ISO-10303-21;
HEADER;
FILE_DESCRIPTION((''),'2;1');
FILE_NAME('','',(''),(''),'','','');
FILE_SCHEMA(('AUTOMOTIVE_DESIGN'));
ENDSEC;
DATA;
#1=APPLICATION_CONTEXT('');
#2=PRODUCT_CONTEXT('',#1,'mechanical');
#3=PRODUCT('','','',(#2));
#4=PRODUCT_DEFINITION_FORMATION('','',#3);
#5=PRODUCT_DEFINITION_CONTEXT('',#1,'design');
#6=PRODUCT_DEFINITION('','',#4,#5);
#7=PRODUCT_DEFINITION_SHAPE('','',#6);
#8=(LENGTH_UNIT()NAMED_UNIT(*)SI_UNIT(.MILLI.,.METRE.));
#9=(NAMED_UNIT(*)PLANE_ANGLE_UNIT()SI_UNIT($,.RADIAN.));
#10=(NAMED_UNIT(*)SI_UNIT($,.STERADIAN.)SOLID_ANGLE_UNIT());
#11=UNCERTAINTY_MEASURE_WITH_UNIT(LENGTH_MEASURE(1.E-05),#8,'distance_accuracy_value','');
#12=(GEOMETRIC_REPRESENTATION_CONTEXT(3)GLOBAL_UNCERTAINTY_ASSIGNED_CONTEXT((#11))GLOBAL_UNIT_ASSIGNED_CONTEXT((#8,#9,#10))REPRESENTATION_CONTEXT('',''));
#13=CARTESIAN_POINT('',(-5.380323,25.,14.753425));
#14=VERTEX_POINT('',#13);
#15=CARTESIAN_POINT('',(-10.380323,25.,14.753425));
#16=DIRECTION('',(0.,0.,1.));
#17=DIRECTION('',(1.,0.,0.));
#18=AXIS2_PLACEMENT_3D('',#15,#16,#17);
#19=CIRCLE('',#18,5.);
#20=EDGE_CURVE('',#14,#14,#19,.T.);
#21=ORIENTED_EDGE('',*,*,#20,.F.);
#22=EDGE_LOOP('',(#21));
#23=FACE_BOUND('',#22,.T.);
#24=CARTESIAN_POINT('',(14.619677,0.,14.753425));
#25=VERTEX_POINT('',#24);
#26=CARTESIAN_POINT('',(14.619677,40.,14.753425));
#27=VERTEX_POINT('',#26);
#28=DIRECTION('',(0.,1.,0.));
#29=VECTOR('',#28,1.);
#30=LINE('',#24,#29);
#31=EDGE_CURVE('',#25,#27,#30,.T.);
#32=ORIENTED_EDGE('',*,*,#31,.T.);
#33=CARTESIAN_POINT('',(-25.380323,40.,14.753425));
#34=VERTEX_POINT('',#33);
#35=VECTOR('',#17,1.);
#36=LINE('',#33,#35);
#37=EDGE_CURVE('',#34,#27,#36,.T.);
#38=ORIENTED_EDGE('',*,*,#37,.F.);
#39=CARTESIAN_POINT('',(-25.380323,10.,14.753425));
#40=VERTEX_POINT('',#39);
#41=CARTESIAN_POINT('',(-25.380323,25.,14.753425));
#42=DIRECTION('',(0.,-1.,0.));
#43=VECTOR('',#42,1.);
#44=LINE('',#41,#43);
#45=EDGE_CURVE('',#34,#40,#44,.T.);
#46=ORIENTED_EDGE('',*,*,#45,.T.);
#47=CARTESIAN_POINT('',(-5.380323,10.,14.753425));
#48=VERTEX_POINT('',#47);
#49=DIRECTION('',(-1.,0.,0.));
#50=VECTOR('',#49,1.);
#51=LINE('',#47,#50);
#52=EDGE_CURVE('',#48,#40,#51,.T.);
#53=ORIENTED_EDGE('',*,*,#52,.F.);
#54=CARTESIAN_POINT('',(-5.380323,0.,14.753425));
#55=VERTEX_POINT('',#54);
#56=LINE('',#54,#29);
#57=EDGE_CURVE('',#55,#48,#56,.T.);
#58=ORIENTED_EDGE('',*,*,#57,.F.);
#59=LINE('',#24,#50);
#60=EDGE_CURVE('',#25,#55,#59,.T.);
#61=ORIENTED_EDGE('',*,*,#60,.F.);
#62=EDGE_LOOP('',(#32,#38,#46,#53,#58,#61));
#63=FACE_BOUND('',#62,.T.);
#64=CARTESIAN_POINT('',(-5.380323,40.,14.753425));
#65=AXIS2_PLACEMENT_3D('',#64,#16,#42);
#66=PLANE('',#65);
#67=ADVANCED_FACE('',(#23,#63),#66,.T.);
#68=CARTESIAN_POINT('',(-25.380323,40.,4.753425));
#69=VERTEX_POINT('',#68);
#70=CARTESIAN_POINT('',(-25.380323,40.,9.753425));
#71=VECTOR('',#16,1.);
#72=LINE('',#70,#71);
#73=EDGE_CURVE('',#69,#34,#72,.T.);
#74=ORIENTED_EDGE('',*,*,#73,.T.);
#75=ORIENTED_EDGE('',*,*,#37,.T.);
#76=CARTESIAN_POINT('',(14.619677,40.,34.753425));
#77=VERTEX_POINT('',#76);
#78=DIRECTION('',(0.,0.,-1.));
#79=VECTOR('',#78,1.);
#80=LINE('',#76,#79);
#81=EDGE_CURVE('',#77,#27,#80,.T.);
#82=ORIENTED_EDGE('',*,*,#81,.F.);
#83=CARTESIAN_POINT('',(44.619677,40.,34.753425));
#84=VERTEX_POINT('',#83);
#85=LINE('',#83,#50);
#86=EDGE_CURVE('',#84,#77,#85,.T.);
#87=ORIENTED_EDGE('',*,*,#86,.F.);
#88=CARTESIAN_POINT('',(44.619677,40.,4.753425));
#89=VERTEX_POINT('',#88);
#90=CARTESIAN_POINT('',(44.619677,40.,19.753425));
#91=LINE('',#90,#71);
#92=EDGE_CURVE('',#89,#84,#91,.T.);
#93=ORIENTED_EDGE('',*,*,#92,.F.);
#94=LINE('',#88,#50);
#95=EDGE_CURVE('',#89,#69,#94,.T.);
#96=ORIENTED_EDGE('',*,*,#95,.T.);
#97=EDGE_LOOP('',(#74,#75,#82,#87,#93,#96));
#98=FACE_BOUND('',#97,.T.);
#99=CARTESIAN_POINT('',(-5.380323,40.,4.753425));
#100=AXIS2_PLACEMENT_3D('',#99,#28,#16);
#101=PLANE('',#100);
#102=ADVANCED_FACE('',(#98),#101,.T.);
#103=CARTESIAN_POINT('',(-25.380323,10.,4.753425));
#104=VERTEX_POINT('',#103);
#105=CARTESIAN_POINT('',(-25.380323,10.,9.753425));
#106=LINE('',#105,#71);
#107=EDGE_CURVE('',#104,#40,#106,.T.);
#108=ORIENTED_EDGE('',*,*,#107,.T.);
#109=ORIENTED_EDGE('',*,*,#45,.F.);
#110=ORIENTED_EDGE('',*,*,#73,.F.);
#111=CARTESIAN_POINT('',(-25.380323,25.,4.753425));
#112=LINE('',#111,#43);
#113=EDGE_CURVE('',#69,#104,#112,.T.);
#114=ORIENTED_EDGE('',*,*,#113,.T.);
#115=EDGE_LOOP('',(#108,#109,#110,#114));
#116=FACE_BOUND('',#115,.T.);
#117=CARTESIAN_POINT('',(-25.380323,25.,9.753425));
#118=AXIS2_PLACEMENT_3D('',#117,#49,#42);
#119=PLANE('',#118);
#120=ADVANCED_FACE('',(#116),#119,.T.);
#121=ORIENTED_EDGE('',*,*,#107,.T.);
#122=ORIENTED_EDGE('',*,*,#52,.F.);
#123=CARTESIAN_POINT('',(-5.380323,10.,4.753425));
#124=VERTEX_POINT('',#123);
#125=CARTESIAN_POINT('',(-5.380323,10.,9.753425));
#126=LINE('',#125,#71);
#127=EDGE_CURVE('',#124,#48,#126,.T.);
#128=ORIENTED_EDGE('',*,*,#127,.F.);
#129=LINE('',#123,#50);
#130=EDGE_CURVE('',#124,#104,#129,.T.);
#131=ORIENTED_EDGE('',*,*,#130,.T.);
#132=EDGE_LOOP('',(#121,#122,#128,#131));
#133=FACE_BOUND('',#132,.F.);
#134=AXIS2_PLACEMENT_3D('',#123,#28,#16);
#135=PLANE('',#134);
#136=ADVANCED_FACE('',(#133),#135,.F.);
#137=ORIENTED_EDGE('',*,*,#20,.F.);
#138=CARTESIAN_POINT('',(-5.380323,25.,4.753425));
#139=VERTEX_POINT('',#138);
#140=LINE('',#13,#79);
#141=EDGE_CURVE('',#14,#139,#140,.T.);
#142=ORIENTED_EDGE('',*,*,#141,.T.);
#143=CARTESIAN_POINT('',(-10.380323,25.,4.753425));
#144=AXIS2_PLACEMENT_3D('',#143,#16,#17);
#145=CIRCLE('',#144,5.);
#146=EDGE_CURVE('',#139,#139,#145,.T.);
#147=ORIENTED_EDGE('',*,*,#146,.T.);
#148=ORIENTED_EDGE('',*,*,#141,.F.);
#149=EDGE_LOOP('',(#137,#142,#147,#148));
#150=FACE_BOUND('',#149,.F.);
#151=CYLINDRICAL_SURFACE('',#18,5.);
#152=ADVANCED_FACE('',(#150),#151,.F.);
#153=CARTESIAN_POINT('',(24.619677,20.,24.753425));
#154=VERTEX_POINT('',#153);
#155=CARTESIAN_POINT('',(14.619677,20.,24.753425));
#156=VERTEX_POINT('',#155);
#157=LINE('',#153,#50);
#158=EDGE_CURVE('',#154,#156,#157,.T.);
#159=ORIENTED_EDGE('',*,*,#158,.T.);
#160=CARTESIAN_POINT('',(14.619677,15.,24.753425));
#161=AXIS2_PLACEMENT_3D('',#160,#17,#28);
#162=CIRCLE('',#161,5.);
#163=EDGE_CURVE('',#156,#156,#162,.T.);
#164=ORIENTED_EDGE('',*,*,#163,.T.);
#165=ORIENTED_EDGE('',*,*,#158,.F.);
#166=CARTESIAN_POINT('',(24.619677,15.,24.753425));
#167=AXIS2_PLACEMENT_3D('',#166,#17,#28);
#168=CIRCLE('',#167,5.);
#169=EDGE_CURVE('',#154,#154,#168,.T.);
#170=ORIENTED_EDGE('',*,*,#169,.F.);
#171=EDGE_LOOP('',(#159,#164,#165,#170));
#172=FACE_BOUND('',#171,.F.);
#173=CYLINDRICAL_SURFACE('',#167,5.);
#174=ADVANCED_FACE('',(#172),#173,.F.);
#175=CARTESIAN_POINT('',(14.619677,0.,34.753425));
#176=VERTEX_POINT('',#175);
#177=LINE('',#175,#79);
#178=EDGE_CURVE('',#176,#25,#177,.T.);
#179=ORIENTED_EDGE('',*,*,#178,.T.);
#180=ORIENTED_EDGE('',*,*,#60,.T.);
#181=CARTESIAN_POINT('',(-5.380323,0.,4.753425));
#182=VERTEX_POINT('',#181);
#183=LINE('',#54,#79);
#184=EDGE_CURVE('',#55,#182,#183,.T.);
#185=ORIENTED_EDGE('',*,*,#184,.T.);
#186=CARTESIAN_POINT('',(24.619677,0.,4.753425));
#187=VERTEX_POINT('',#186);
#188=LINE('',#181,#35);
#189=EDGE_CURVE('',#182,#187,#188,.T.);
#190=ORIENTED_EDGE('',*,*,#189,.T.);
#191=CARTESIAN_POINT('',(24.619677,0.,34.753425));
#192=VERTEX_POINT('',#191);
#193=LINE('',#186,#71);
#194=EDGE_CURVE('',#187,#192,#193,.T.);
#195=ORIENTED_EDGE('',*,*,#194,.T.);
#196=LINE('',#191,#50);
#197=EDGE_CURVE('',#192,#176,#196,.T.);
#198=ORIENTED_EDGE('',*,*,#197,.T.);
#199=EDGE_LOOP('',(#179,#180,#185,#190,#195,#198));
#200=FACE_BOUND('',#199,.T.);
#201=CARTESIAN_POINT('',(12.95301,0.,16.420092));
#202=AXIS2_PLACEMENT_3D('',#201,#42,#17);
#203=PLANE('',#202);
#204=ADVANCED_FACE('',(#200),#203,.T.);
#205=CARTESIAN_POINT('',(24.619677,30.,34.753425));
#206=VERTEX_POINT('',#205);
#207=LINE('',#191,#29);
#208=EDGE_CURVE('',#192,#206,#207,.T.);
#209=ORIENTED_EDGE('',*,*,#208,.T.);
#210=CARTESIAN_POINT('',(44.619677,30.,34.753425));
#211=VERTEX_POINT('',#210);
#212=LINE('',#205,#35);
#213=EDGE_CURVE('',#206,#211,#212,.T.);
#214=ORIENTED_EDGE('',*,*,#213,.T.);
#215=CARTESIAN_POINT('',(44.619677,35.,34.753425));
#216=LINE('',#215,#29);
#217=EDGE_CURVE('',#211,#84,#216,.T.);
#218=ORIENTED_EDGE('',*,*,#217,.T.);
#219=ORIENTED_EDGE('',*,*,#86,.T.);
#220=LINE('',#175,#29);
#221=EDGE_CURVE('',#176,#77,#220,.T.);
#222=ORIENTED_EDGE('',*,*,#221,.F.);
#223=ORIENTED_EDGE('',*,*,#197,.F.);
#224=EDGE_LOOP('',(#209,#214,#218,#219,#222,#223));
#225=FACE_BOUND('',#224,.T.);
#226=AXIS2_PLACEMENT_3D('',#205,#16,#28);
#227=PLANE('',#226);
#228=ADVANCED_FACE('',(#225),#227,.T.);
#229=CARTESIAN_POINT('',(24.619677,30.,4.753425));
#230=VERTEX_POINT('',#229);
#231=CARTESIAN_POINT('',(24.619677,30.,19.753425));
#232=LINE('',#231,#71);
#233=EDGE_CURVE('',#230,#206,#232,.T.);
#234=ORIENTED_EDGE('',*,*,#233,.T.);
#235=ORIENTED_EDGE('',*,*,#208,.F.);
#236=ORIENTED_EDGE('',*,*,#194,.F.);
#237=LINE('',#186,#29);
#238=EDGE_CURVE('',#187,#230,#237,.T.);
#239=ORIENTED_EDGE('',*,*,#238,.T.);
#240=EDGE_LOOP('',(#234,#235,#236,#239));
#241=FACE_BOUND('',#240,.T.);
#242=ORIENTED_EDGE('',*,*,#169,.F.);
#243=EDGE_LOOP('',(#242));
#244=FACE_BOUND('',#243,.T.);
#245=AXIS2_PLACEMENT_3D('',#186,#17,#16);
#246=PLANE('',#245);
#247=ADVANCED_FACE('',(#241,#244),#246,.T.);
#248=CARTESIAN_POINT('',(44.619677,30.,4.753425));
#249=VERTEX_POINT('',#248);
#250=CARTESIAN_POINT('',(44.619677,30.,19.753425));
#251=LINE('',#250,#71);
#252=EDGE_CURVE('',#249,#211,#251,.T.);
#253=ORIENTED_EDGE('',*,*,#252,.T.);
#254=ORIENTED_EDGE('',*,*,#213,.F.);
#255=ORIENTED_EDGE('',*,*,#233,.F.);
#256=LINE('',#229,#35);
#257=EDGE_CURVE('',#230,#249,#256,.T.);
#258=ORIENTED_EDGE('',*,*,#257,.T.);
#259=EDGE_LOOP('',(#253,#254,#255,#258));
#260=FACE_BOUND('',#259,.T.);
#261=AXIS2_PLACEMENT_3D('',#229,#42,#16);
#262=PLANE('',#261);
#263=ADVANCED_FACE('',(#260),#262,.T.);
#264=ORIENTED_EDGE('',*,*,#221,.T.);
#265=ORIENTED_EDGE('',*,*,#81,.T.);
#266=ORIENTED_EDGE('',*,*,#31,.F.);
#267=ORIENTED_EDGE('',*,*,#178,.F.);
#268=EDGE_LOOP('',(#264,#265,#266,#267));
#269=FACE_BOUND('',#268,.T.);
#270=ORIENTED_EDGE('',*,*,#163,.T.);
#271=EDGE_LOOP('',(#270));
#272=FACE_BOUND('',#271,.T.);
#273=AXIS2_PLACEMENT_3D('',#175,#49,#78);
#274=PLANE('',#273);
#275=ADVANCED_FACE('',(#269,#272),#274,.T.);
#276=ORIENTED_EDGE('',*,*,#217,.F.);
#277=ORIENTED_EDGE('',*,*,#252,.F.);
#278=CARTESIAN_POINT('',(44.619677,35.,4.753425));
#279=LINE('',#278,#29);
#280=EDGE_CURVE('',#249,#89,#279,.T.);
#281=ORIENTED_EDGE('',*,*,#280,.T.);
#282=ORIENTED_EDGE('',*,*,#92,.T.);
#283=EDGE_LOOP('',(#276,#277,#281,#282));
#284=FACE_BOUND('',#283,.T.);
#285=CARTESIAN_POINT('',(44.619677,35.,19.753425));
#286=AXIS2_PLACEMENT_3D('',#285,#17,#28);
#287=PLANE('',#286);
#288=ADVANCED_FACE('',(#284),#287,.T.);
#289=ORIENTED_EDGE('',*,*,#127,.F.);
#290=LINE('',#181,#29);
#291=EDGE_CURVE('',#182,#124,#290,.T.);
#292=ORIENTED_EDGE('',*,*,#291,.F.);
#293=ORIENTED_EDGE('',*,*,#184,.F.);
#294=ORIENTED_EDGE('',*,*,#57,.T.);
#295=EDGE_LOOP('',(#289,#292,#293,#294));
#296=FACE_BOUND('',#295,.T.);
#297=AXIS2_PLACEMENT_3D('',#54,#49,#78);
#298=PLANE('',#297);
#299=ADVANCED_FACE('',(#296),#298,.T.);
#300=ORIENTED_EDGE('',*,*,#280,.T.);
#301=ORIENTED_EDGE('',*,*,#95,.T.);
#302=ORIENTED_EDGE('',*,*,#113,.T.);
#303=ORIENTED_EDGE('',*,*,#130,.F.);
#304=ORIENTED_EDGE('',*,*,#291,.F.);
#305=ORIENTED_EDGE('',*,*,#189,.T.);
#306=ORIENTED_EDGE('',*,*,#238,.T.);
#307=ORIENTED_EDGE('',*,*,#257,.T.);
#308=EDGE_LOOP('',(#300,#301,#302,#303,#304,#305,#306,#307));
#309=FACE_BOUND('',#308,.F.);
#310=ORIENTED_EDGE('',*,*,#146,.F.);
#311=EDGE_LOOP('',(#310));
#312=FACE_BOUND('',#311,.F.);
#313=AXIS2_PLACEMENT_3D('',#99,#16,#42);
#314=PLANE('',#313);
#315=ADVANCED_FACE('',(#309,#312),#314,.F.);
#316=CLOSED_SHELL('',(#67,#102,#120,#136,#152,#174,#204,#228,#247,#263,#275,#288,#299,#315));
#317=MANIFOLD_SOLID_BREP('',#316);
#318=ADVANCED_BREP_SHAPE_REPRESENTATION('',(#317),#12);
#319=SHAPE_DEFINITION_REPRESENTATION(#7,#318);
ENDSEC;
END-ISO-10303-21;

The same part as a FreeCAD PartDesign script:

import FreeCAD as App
import Part
import Sketcher

V = App.Vector

doc = App.newDocument("Part")
body = doc.addObject("PartDesign::Body", "Body")

# Sketch on XZ plane
sketch1 = body.newObject("Sketcher::SketchObject", "Sketch")
sketch1.AttachmentSupport = (doc.getObject("XZ_Plane"), [""])
sketch1.MapMode = "FlatFace"
sketch1.addGeometry([
    Part.LineSegment(V(-5, 15, 0), V(-5, 5, 0)),  # 0
    Part.LineSegment(V(-5, 5, 0), V(25, 5, 0)),  # 1
    Part.LineSegment(V(25, 5, 0), V(25, 35, 0)),  # 2
    Part.LineSegment(V(25, 35, 0), V(15, 35, 0)),  # 3
    Part.LineSegment(V(15, 35, 0), V(15, 15, 0)),  # 4
    Part.LineSegment(V(15, 15, 0), V(-5, 15, 0)),  # 5
], False)
sketch1.addConstraint([
    Sketcher.Constraint("Coincident", 0, 2, 1, 1),
    Sketcher.Constraint("Coincident", 1, 2, 2, 1),
    Sketcher.Constraint("Coincident", 2, 2, 3, 1),
    Sketcher.Constraint("Coincident", 3, 2, 4, 1),
    Sketcher.Constraint("Coincident", 4, 2, 5, 1),
    Sketcher.Constraint("Coincident", 5, 2, 0, 1),
    Sketcher.Constraint("Vertical", 0),
    Sketcher.Constraint("Horizontal", 1),
    Sketcher.Constraint("Vertical", 2),
    Sketcher.Constraint("Horizontal", 3),
    Sketcher.Constraint("Vertical", 4),
    Sketcher.Constraint("Horizontal", 5),
    Sketcher.Constraint("Equal", 3, 0),
    Sketcher.Constraint("Equal", 1, 2),
    Sketcher.Constraint("DistanceX", 1, 1, 1, 2, 30.0),
    Sketcher.Constraint("DistanceX", 3, 2, 3, 1, 10.0),
    Sketcher.Constraint("DistanceX", 0, 2, -1, 1, 5.380323),
    Sketcher.Constraint("DistanceY", -1, 1, 0, 2, 4.753425),
])
pad1 = body.newObject("PartDesign::Pad", "Pad")
pad1.Profile = sketch1
pad1.Length = 40
pad1.Reversed = True

# Sketch on YZ plane
sketch2 = body.newObject("Sketcher::SketchObject", "Sketch001")
sketch2.AttachmentSupport = (doc.getObject("YZ_Plane"), [""])
sketch2.MapMode = "FlatFace"
sketch2.AttachmentOffset = App.Placement(V(0, 0, 24.619677), App.Rotation())
sketch2.addGeometry([
    Part.LineSegment(V(30, 35, 0), V(30, 5, 0)),
    Part.LineSegment(V(30, 5, 0), V(40, 5, 0)),
    Part.LineSegment(V(40, 5, 0), V(40, 35, 0)),
    Part.LineSegment(V(40, 35, 0), V(30, 35, 0)),
], False)
sketch2.addConstraint([
    Sketcher.Constraint("Coincident", 0, 2, 1, 1),
    Sketcher.Constraint("Coincident", 1, 2, 2, 1),
    Sketcher.Constraint("Coincident", 2, 2, 3, 1),
    Sketcher.Constraint("Coincident", 3, 2, 0, 1),
    Sketcher.Constraint("Vertical", 0),
    Sketcher.Constraint("Horizontal", 1),
    Sketcher.Constraint("Vertical", 2),
    Sketcher.Constraint("Horizontal", 3),
    Sketcher.Constraint("DistanceX", 1, 1, 1, 2, 10.0),
    Sketcher.Constraint("DistanceY", 0, 2, 0, 1, 30.0),
    Sketcher.Constraint("DistanceX", -1, 1, 0, 2, 30.0),
    Sketcher.Constraint("DistanceY", -1, 1, 0, 2, 4.753425),
])
pad2 = body.newObject("PartDesign::Pad", "Pad001")
pad2.Profile = sketch2
pad2.Length = 20

# Sketch on YZ plane
sketch3 = body.newObject("Sketcher::SketchObject", "Sketch002")
sketch3.AttachmentSupport = (doc.getObject("YZ_Plane"), [""])
sketch3.MapMode = "FlatFace"
sketch3.AttachmentOffset = App.Placement(V(0, 0, 24.619677), App.Rotation())
sketch3.addGeometry(Part.Circle(V(15, 25, 0), V(0, 0, 1), 5), False)
sketch3.addConstraint([
    Sketcher.Constraint("Diameter", 0, 10.0),
    Sketcher.Constraint("DistanceX", -1, 1, 0, 3, 15.0),
    Sketcher.Constraint("DistanceY", -1, 1, 0, 3, 24.753425),
])
pocket1 = body.newObject("PartDesign::Pocket", "Pocket")
pocket1.Profile = sketch3
pocket1.Type = "ThroughAll"

# Sketch on YZ plane
sketch4 = body.newObject("Sketcher::SketchObject", "Sketch003")
sketch4.AttachmentSupport = (doc.getObject("YZ_Plane"), [""])
sketch4.MapMode = "FlatFace"
sketch4.AttachmentOffset = App.Placement(V(0, 0, -5.380323), App.Rotation())
sketch4.addGeometry([
    Part.LineSegment(V(40, 15, 0), V(40, 5, 0)),
    Part.LineSegment(V(40, 5, 0), V(10, 5, 0)),
    Part.LineSegment(V(10, 5, 0), V(10, 15, 0)),
    Part.LineSegment(V(10, 15, 0), V(40, 15, 0)),
], False)
sketch4.addConstraint([
    Sketcher.Constraint("Coincident", 0, 2, 1, 1),
    Sketcher.Constraint("Coincident", 1, 2, 2, 1),
    Sketcher.Constraint("Coincident", 2, 2, 3, 1),
    Sketcher.Constraint("Coincident", 3, 2, 0, 1),
    Sketcher.Constraint("Vertical", 0),
    Sketcher.Constraint("Horizontal", 1),
    Sketcher.Constraint("Vertical", 2),
    Sketcher.Constraint("Horizontal", 3),
    Sketcher.Constraint("DistanceX", 1, 2, 1, 1, 30.0),
    Sketcher.Constraint("DistanceY", 0, 2, 0, 1, 10.0),
    Sketcher.Constraint("DistanceX", -1, 1, 0, 2, 40.0),
    Sketcher.Constraint("DistanceY", -1, 1, 0, 2, 4.753425),
])
pad3 = body.newObject("PartDesign::Pad", "Pad002")
pad3.Profile = sketch4
pad3.Length = 20
pad3.Reversed = True

# Sketch on XY plane
sketch5 = body.newObject("Sketcher::SketchObject", "Sketch004")
sketch5.AttachmentSupport = (doc.getObject("XY_Plane"), [""])
sketch5.MapMode = "FlatFace"
sketch5.AttachmentOffset = App.Placement(V(0, 0, 14.753425), App.Rotation())
sketch5.addGeometry(Part.Circle(V(-10, 25, 0), V(0, 0, 1), 5), False)
sketch5.addConstraint([
    Sketcher.Constraint("Diameter", 0, 10.0),
    Sketcher.Constraint("DistanceY", -1, 1, 0, 3, 25.0),
    Sketcher.Constraint("DistanceX", 0, 3, -1, 1, 10.380323),
])
pocket2 = body.newObject("PartDesign::Pocket", "Pocket001")
pocket2.Profile = sketch5
pocket2.Type = "ThroughAll"

doc.recompute()
